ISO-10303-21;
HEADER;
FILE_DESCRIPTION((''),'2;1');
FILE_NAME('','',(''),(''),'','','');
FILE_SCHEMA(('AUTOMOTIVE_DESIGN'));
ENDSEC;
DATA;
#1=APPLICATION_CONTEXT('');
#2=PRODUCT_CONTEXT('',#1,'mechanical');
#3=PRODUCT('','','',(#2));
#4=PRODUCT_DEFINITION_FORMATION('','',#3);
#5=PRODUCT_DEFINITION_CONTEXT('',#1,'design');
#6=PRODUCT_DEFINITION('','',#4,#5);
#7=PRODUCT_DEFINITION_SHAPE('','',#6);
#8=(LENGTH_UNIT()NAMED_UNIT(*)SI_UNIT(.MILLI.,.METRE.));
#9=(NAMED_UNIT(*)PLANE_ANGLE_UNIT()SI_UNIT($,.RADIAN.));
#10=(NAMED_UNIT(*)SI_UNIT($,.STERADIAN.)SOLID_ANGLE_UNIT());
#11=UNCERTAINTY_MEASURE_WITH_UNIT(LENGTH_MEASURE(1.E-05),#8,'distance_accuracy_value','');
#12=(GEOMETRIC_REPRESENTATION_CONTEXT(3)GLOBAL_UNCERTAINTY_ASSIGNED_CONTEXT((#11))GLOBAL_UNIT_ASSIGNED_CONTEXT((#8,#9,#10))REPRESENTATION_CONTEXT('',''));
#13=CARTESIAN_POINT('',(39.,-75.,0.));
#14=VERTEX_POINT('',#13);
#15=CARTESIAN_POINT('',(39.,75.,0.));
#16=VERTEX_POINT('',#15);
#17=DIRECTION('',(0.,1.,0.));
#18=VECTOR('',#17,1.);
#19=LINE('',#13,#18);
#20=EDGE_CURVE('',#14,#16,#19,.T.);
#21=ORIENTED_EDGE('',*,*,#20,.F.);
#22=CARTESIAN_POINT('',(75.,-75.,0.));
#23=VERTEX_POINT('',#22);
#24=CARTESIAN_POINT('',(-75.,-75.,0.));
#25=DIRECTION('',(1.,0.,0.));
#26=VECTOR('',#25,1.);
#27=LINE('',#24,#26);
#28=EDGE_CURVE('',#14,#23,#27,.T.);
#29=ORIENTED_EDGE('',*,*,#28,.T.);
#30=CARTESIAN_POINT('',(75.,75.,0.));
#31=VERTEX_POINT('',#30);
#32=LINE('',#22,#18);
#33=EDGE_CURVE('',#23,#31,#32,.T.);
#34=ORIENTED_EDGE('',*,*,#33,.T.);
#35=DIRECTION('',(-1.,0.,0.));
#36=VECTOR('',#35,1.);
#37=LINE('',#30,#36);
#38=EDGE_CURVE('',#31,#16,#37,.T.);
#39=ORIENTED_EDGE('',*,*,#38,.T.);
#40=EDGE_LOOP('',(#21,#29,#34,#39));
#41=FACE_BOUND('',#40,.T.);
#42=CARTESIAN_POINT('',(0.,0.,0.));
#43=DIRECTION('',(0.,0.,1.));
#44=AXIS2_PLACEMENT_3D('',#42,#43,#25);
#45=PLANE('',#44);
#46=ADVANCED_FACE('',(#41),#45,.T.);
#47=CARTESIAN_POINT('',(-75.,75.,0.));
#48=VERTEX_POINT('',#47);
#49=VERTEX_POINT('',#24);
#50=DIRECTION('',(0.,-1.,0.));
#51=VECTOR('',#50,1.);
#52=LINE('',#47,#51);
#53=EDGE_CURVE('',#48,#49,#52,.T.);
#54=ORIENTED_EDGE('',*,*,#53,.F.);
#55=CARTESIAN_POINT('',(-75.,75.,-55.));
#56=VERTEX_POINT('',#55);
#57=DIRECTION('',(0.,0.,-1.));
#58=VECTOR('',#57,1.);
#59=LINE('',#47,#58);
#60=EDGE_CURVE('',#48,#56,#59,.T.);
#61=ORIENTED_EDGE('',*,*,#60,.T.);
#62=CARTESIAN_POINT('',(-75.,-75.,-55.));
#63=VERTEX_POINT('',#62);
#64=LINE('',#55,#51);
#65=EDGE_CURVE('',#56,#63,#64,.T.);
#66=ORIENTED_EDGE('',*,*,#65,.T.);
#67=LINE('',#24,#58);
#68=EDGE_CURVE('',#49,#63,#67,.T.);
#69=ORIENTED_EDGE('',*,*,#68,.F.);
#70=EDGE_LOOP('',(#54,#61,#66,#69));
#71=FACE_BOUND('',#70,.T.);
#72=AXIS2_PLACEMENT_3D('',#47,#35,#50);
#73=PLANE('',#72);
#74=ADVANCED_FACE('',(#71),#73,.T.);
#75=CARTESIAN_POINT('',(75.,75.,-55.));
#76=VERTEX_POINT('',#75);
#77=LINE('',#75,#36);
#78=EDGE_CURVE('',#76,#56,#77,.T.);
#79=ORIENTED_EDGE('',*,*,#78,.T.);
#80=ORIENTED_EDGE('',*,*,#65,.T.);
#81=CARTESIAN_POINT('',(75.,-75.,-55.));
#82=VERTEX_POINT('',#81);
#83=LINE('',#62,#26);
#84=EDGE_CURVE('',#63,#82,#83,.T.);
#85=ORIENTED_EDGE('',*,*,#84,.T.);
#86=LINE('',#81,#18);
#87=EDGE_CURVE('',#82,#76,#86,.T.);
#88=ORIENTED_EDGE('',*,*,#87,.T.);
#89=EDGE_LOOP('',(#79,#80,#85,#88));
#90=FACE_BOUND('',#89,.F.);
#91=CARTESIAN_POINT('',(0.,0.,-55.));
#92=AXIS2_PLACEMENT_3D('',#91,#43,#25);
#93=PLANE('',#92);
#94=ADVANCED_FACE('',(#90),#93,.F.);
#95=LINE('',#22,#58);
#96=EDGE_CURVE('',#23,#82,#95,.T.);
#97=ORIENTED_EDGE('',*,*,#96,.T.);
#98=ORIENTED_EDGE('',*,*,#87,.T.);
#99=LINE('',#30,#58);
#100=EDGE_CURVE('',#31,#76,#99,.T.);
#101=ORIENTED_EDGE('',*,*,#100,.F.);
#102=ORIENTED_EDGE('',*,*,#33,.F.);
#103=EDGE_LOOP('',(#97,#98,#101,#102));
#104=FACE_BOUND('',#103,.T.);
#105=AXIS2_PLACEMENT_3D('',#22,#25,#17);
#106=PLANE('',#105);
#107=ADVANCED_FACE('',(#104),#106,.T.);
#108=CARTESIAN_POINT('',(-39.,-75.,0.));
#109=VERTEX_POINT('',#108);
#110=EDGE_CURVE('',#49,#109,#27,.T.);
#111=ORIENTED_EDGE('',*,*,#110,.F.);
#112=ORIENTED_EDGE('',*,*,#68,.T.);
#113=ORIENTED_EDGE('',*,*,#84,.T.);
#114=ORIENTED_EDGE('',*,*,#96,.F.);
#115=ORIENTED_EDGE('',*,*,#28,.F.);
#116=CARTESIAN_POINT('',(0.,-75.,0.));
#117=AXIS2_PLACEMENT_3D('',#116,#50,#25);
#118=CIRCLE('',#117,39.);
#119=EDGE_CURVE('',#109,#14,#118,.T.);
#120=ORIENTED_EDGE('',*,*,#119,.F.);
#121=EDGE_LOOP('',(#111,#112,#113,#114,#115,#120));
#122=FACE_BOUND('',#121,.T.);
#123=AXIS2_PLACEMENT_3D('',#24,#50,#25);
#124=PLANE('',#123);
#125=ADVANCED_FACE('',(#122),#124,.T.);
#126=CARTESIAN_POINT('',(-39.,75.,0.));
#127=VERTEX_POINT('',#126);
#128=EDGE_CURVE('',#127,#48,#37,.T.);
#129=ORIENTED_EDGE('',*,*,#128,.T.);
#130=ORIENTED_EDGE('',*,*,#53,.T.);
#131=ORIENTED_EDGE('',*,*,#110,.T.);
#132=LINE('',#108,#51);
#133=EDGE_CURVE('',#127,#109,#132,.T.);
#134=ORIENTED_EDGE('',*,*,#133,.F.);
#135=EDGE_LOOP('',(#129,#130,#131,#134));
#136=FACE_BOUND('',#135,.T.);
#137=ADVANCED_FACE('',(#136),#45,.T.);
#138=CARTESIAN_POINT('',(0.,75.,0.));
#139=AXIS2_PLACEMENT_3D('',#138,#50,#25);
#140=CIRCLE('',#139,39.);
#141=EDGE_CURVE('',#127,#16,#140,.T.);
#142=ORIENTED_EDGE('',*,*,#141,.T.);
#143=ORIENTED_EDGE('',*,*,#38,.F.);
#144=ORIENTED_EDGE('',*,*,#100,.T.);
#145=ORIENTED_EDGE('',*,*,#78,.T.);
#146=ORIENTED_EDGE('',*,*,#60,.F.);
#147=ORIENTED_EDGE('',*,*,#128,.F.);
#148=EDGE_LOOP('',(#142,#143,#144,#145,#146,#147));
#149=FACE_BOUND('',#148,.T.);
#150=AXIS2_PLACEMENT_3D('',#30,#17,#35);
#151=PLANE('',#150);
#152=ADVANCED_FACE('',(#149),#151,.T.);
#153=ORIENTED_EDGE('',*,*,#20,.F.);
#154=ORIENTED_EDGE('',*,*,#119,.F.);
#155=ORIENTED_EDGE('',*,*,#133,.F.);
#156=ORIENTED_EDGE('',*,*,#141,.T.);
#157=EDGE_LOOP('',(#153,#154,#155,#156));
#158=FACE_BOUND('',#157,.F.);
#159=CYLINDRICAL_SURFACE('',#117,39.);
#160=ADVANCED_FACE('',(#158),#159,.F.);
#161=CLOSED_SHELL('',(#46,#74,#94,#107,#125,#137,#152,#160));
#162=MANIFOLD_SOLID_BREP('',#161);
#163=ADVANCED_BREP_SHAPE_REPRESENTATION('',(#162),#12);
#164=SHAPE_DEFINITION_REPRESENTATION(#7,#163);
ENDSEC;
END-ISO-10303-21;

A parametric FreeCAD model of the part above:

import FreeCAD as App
import Part
import Sketcher
Q = App.Units.Quantity

doc = App.newDocument("Part")
body = doc.addObject("PartDesign::Body", "Body")

sketch1 = body.newObject("Sketcher::SketchObject", "Sketch")
sketch1.AttachmentSupport = (doc.getObject("XY_Plane"), [""])
sketch1.MapMode = "FlatFace"
sketch1.addGeometry([
    Part.LineSegment(App.Vector(-75, 75, 0), App.Vector(-75, -75, 0)),
    Part.LineSegment(App.Vector(-75, -75, 0), App.Vector(75, -75, 0)),
    Part.LineSegment(App.Vector(75, -75, 0), App.Vector(75, 75, 0)),
    Part.LineSegment(App.Vector(75, 75, 0), App.Vector(-75, 75, 0)),
], False)
sketch1.addConstraint([
    Sketcher.Constraint("Coincident", 0, 2, 1, 1),
    Sketcher.Constraint("Coincident", 1, 2, 2, 1),
    Sketcher.Constraint("Coincident", 2, 2, 3, 1),
    Sketcher.Constraint("Coincident", 3, 2, 0, 1),
    Sketcher.Constraint("Vertical", 0),
    Sketcher.Constraint("Horizontal", 1),
    Sketcher.Constraint("Vertical", 2),
    Sketcher.Constraint("Horizontal", 3),
    Sketcher.Constraint("Symmetric", 0, 2, 2, 2, -1, 1),
    Sketcher.Constraint("Equal", 3, 0),
    Sketcher.Constraint("DistanceX", 1, 1, 1, 2, Q("150 mm")),
])
pad1 = body.newObject("PartDesign::Pad", "Pad")
pad1.Profile = sketch1
pad1.Length = 55
pad1.Reversed = True

sketch2 = body.newObject("Sketcher::SketchObject", "Sketch001")
sketch2.AttachmentSupport = (doc.getObject("XZ_Plane"), [""])
sketch2.MapMode = "FlatFace"
sketch2.AttachmentOffset = App.Placement(App.Vector(0, 0, 75), App.Rotation())
sketch2.addGeometry(Part.Circle(App.Vector(0, 0, 0), App.Vector(0, 0, 1), 39), False)
sketch2.addConstraint([
    Sketcher.Constraint("Coincident", 0, 3, -1, 1),
    Sketcher.Constraint("Diameter", 0, Q("78 mm")),
])
pocket1 = body.newObject("PartDesign::Pocket", "Pocket")
pocket1.Profile = sketch2
pocket1.Length = 150

doc.recompute()
